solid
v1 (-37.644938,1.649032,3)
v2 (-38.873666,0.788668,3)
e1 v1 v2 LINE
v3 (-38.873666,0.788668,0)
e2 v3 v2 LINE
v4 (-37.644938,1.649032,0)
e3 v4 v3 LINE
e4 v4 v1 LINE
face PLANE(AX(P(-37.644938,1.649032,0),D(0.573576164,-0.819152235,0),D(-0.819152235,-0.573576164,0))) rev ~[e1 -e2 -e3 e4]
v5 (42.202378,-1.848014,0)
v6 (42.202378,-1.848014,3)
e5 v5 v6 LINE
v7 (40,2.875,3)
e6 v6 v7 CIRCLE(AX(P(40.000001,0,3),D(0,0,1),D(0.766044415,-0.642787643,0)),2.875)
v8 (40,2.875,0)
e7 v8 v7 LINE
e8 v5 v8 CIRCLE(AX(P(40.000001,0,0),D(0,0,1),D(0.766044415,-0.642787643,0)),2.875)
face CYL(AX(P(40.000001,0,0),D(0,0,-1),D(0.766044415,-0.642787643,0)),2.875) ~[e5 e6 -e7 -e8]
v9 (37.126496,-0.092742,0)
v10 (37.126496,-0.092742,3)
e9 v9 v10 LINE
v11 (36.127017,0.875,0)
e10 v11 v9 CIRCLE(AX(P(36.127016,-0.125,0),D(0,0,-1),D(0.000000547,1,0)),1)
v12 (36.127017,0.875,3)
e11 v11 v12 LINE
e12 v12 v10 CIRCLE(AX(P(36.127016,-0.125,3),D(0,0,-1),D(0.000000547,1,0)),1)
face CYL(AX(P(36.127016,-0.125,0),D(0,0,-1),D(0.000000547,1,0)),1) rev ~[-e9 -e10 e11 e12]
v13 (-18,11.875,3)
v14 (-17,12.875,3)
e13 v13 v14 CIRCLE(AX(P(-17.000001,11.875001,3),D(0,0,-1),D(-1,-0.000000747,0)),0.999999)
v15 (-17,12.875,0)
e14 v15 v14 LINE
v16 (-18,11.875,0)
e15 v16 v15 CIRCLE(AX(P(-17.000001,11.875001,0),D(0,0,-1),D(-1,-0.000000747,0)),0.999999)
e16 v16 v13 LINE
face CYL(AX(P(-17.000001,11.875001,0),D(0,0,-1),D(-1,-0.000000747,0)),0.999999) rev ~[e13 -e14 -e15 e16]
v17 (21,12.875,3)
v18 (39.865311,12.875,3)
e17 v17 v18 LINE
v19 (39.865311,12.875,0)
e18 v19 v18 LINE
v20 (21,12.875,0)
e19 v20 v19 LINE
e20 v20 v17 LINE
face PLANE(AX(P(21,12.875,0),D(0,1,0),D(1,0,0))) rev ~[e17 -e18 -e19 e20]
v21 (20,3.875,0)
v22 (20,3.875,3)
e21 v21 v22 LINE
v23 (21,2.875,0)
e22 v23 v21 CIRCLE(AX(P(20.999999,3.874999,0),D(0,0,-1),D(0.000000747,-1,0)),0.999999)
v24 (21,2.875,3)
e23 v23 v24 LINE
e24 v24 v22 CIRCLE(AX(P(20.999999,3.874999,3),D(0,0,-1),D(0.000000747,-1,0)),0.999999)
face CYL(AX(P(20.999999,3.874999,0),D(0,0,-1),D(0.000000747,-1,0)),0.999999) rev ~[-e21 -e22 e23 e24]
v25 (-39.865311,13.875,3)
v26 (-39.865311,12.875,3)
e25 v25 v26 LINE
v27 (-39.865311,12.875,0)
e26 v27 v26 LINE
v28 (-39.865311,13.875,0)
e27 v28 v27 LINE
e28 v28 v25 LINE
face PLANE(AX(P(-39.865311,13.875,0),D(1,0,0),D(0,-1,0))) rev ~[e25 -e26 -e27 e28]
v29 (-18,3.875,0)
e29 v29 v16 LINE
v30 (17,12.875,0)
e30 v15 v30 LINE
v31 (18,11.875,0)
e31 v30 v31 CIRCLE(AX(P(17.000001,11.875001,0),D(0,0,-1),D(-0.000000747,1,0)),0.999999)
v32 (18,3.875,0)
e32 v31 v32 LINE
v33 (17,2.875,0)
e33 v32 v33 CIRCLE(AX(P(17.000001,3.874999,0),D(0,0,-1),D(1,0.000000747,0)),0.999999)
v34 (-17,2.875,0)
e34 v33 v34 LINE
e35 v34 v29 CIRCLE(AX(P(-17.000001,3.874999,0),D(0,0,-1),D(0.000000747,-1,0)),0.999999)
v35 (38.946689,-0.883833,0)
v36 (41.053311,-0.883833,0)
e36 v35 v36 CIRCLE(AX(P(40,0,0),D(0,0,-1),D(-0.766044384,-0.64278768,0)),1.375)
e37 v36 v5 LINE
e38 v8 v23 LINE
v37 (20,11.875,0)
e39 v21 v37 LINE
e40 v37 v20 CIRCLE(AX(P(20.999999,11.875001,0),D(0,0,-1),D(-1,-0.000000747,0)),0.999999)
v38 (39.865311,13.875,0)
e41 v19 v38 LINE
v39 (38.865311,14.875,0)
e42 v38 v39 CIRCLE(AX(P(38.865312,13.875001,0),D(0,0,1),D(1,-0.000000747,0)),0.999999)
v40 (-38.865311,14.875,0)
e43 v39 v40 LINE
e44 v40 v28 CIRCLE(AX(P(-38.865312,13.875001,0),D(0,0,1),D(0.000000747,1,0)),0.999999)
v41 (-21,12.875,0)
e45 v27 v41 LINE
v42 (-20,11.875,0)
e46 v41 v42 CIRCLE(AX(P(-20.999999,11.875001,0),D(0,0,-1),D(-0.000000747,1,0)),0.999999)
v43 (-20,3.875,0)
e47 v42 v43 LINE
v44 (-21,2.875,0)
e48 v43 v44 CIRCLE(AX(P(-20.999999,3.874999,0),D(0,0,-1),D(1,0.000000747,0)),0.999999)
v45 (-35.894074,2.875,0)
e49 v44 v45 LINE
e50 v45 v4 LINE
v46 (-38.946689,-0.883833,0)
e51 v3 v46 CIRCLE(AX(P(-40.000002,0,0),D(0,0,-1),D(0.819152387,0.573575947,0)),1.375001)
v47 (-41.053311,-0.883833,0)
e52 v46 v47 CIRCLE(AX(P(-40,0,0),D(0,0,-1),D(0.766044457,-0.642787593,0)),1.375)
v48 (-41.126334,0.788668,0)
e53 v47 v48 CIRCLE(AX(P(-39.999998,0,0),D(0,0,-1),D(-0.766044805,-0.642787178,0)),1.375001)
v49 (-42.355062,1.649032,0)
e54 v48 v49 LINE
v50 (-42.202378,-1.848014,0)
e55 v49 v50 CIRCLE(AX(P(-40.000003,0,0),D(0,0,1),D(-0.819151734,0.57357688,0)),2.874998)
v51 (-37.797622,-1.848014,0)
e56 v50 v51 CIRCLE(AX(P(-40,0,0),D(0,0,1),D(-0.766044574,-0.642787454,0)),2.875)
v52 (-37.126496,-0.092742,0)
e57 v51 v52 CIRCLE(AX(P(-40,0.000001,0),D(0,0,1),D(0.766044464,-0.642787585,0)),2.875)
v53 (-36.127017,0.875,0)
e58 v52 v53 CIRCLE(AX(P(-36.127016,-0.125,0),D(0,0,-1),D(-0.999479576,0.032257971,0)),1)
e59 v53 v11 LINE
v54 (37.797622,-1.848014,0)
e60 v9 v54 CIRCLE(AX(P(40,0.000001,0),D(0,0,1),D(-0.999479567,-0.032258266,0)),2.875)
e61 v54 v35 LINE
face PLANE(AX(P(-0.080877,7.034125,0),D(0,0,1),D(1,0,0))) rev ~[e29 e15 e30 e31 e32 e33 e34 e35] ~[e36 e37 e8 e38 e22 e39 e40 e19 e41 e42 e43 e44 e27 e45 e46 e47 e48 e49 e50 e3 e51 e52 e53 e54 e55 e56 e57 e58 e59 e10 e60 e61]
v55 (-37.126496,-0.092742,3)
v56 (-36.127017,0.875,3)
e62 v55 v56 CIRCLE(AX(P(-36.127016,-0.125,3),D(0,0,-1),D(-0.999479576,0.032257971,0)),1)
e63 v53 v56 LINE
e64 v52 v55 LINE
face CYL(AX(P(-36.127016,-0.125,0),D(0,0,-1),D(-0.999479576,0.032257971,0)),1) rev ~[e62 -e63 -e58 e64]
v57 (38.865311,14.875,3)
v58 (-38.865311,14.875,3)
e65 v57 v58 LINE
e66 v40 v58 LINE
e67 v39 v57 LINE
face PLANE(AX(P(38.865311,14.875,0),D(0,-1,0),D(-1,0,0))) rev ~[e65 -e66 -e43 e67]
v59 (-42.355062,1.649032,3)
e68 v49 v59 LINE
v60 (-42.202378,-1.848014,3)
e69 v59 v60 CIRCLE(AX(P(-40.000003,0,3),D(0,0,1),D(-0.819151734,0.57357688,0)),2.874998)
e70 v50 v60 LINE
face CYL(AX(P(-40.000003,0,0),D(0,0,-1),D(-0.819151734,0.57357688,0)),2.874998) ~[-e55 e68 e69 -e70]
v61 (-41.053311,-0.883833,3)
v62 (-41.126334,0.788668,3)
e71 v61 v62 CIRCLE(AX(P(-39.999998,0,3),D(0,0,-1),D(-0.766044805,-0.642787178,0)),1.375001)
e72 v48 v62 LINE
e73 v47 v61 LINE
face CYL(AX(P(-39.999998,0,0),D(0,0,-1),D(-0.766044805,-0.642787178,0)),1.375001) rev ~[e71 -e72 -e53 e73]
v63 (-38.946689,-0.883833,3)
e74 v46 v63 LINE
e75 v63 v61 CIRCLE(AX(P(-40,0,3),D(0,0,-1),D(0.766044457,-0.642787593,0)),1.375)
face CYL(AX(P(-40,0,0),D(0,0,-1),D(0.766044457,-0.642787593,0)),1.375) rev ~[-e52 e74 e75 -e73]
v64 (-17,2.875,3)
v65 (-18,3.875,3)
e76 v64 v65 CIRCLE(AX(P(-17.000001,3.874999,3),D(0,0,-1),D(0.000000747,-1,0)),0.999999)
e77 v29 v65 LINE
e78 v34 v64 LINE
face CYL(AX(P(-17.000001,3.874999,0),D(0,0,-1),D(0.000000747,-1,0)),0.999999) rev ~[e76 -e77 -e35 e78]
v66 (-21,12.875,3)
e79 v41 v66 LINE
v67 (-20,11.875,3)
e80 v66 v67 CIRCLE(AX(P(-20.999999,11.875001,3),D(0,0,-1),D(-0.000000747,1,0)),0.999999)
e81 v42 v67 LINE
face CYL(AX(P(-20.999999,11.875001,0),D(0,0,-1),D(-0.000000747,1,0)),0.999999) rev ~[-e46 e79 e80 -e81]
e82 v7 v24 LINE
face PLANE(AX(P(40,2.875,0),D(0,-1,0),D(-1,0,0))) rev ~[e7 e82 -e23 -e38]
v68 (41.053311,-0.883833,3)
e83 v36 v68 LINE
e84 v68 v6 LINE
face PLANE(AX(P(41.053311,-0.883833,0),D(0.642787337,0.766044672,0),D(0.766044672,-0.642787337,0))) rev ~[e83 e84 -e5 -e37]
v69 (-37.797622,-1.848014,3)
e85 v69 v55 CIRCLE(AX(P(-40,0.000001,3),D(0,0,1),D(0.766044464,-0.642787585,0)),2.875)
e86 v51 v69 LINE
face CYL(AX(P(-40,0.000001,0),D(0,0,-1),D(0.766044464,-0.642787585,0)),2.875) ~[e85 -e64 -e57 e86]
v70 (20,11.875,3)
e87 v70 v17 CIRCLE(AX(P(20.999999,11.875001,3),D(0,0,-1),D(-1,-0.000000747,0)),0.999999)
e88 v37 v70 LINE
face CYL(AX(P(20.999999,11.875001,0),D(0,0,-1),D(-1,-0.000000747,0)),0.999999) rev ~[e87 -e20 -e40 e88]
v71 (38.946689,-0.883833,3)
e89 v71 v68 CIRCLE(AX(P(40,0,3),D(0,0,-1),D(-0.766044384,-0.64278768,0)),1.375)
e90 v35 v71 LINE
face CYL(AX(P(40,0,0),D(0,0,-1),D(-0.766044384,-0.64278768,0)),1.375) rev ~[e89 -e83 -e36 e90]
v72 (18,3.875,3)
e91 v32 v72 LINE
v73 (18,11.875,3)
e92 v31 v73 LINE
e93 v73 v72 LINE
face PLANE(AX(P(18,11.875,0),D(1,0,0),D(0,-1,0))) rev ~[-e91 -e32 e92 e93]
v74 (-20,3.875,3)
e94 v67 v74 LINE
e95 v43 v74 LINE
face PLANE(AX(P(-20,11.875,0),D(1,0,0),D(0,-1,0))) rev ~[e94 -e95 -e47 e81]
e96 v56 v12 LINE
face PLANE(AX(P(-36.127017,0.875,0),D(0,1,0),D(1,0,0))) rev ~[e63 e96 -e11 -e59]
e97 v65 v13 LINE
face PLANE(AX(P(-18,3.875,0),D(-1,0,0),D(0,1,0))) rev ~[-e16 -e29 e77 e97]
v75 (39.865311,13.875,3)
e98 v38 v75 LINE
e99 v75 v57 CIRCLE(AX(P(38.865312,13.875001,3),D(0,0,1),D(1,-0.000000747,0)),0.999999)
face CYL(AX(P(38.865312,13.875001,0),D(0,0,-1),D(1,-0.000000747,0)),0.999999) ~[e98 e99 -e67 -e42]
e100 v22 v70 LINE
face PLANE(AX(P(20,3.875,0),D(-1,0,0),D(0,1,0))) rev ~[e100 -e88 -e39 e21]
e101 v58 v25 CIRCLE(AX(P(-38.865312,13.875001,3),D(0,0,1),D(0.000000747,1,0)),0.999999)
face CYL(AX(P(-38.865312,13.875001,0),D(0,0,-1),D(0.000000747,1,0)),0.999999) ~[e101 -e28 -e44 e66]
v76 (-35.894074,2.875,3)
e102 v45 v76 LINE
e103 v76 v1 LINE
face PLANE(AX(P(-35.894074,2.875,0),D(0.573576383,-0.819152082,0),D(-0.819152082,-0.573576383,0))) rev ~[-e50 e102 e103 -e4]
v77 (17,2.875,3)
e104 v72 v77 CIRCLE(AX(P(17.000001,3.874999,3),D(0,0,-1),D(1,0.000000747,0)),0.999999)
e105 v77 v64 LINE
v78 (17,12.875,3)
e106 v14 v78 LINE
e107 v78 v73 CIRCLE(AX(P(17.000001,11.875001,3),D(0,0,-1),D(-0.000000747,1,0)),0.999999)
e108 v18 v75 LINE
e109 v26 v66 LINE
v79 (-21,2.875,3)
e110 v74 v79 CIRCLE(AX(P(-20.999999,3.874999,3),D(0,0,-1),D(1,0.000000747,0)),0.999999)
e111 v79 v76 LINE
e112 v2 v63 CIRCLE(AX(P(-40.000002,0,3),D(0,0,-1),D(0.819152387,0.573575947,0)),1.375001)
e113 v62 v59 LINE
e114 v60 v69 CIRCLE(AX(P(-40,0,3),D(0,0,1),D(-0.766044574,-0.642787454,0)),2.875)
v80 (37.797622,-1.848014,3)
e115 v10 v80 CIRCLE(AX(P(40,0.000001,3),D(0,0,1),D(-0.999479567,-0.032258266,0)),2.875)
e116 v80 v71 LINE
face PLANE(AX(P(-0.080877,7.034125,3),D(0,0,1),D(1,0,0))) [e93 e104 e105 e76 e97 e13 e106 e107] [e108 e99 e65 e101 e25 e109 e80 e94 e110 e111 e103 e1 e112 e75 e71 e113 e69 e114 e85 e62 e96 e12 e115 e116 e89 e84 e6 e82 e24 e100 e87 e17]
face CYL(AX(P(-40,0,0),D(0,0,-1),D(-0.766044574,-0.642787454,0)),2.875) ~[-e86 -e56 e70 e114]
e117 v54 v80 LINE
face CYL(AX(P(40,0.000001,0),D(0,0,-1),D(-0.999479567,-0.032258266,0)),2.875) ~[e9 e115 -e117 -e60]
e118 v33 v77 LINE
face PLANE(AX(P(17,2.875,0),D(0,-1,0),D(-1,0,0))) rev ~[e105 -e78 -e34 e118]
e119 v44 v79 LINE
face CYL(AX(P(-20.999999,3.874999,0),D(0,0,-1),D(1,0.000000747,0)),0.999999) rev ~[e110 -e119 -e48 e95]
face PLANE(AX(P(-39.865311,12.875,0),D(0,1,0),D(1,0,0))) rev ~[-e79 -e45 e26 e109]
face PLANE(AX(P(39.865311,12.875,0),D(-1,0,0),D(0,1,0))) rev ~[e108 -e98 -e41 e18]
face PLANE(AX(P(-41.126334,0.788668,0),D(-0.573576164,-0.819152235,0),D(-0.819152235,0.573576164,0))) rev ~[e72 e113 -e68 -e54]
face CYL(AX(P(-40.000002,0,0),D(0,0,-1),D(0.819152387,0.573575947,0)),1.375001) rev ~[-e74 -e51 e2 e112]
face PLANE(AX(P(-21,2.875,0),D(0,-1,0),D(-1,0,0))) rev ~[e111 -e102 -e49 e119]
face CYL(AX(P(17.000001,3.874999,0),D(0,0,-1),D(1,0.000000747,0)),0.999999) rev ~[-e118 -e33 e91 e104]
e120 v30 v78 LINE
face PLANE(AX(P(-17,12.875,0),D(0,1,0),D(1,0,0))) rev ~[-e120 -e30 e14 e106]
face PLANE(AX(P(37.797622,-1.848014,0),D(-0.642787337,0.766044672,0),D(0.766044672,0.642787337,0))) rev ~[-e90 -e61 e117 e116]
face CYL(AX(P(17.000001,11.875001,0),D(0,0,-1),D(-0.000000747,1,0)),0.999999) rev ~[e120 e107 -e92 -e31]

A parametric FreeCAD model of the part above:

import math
import FreeCAD as App
import Part
import Sketcher
from FreeCAD import Vector
Q = App.Units.Quantity

doc = App.newDocument("Part")
body = doc.addObject("PartDesign::Body", "Body")

# Sketch on XY plane
sketch1 = body.newObject("Sketcher::SketchObject", "Sketch")
sketch1.AttachmentSupport = (doc.getObject("XY_Plane"), [""])
sketch1.MapMode = "FlatFace"
sketch1.addGeometry(Part.ArcOfCircle(Part.Circle(Vector(-40.000002, 0, 0), Vector(0, 0, 1), 1.375001), math.radians(-39.999968), math.radians(34.999966)), False)
sketch1.addGeometry(Part.ArcOfCircle(Part.Circle(Vector(-40, 0, 0), Vector(0, 0, 1), 1.375), math.radians(-140.000001), math.radians(-39.999999)), False)
sketch1.addGeometry(Part.ArcOfCircle(Part.Circle(Vector(-39.999998, 0, 0), Vector(0, 0, 1), 1.375001), math.radians(145.000034), math.radians(219.999968)), False)
sketch1.addGeometry(Part.LineSegment(Vector(-41.126334, 0.788668, 0), Vector(-42.355062, 1.649032, 0)), False)
sketch1.addGeometry(Part.ArcOfCircle(Part.Circle(Vector(-40.000003, 0, 0), Vector(0, 0, 1), 2.874998), math.radians(144.999969), math.radians(220.00002)), False)
sketch1.addGeometry(Part.ArcOfCircle(Part.Circle(Vector(-40, 0, 0), Vector(0, 0, 1), 2.875), math.radians(-140.000012), math.radians(-39.999988)), False)
sketch1.addGeometry(Part.ArcOfCircle(Part.Circle(Vector(-40, 0.000001, 0), Vector(0, 0, 1), 2.875), math.radians(-39.999998), math.radians(-1.848583)), False)
sketch1.addGeometry(Part.ArcOfCircle(Part.Circle(Vector(-36.127016, -0.125, 0), Vector(0, 0, 1), 1), math.radians(90.000031), math.radians(178.151434)), False)
sketch1.addGeometry(Part.LineSegment(Vector(-36.127017, 0.875, 0), Vector(36.127017, 0.875, 0)), False)
sketch1.addGeometry(Part.ArcOfCircle(Part.Circle(Vector(36.127016, -0.125, 0), Vector(0, 0, 1), 1), math.radians(1.848566), math.radians(89.999969)), False)
sketch1.addGeometry(Part.ArcOfCircle(Part.Circle(Vector(40, 0.000001, 0), Vector(0, 0, 1), 2.875), math.radians(-178.151417), math.radians(-140.000002)), False)
sketch1.addGeometry(Part.LineSegment(Vector(37.797622, -1.848014, 0), Vector(38.946689, -0.883833, 0)), False)
sketch1.addGeometry(Part.ArcOfCircle(Part.Circle(Vector(40, 0, 0), Vector(0, 0, 1), 1.375), math.radians(-40.000005), math.radians(220.000005)), False)
sketch1.addGeometry(Part.LineSegment(Vector(41.053311, -0.883833, 0), Vector(42.202378, -1.848014, 0)), False)
sketch1.addGeometry(Part.ArcOfCircle(Part.Circle(Vector(40.000001, 0, 0), Vector(0, 0, 1), 2.875), math.radians(-40.000003), math.radians(90.000011)), False)
sketch1.addGeometry(Part.LineSegment(Vector(40, 2.875, 0), Vector(21, 2.875, 0)), False)
sketch1.addGeometry(Part.ArcOfCircle(Part.Circle(Vector(20.999999, 3.874999, 0), Vector(0, 0, 1), 0.999999), math.radians(179.999957), math.radians(270.000043)), False)
sketch1.addGeometry(Part.LineSegment(Vector(20, 3.875, 0), Vector(20, 11.875, 0)), False)
sketch1.addGeometry(Part.ArcOfCircle(Part.Circle(Vector(20.999999, 11.875001, 0), Vector(0, 0, 1), 0.999999), math.radians(89.999957), math.radians(180.000043)), False)
sketch1.addGeometry(Part.LineSegment(Vector(21, 12.875, 0), Vector(39.865311, 12.875, 0)), False)
sketch1.addGeometry(Part.LineSegment(Vector(39.865311, 12.875, 0), Vector(39.865311, 13.875, 0)), False)
sketch1.addGeometry(Part.ArcOfCircle(Part.Circle(Vector(38.865312, 13.875001, 0), Vector(0, 0, 1), 0.999999), math.radians(-0.000043), math.radians(90.000043)), False)
sketch1.addGeometry(Part.LineSegment(Vector(38.865311, 14.875, 0), Vector(-38.865311, 14.875, 0)), False)
sketch1.addGeometry(Part.ArcOfCircle(Part.Circle(Vector(-38.865312, 13.875001, 0), Vector(0, 0, 1), 0.999999), math.radians(89.999957), math.radians(180.000043)), False)
sketch1.addGeometry(Part.LineSegment(Vector(-39.865311, 13.875, 0), Vector(-39.865311, 12.875, 0)), False)
sketch1.addGeometry(Part.LineSegment(Vector(-39.865311, 12.875, 0), Vector(-21, 12.875, 0)), False)
sketch1.addGeometry(Part.ArcOfCircle(Part.Circle(Vector(-20.999999, 11.875001, 0), Vector(0, 0, 1), 0.999999), math.radians(-0.000043), math.radians(90.000043)), False)
sketch1.addGeometry(Part.LineSegment(Vector(-20, 11.875, 0), Vector(-20, 3.875, 0)), False)
sketch1.addGeometry(Part.ArcOfCircle(Part.Circle(Vector(-20.999999, 3.874999, 0), Vector(0, 0, 1), 0.999999), math.radians(-90.000043), math.radians(0.000043)), False)
sketch1.addGeometry(Part.LineSegment(Vector(-21, 2.875, 0), Vector(-35.894074, 2.875, 0)), False)
sketch1.addGeometry(Part.LineSegment(Vector(-35.894074, 2.875, 0), Vector(-37.644938, 1.649032, 0)), False)
sketch1.addGeometry(Part.LineSegment(Vector(-37.644938, 1.649032, 0), Vector(-38.873666, 0.788668, 0)), False)
sketch1.addGeometry(Part.LineSegment(Vector(-18, 3.875, 0), Vector(-18, 11.875, 0)), False)
sketch1.addGeometry(Part.ArcOfCircle(Part.Circle(Vector(-17.000001, 11.875001, 0), Vector(0, 0, 1), 0.999999), math.radians(89.999957), math.radians(180.000043)), False)
sketch1.addGeometry(Part.LineSegment(Vector(-17, 12.875, 0), Vector(17, 12.875, 0)), False)
sketch1.addGeometry(Part.ArcOfCircle(Part.Circle(Vector(17.000001, 11.875001, 0), Vector(0, 0, 1), 0.999999), math.radians(-0.000043), math.radians(90.000043)), False)
sketch1.addGeometry(Part.LineSegment(Vector(18, 11.875, 0), Vector(18, 3.875, 0)), False)
sketch1.addGeometry(Part.ArcOfCircle(Part.Circle(Vector(17.000001, 3.874999, 0), Vector(0, 0, 1), 0.999999), math.radians(-90.000043), math.radians(0.000043)), False)
sketch1.addGeometry(Part.LineSegment(Vector(17, 2.875, 0), Vector(-17, 2.875, 0)), False)
sketch1.addGeometry(Part.ArcOfCircle(Part.Circle(Vector(-17.000001, 3.874999, 0), Vector(0, 0, 1), 0.999999), math.radians(179.999957), math.radians(270.000043)), False)
sketch1.addConstraint(Sketcher.Constraint("Tangent", 0, 1, 1, 2))
sketch1.addConstraint(Sketcher.Constraint("Tangent", 1, 1, 2, 2))
sketch1.addConstraint(Sketcher.Constraint("Coincident", 2, 1, 3, 1))
sketch1.addConstraint(Sketcher.Constraint("Coincident", 3, 2, 4, 1))
sketch1.addConstraint(Sketcher.Constraint("Tangent", 4, 2, 5, 1))
sketch1.addConstraint(Sketcher.Constraint("Tangent", 5, 2, 6, 1))
sketch1.addConstraint(Sketcher.Constraint("Tangent", 6, 2, 7, 2))
sketch1.addConstraint(Sketcher.Constraint("Tangent", 7, 1, 8, 1))
sketch1.addConstraint(Sketcher.Constraint("Tangent", 8, 2, 9, 2))
sketch1.addConstraint(Sketcher.Constraint("Tangent", 9, 1, 10, 1))
sketch1.addConstraint(Sketcher.Constraint("Coincident", 10, 2, 11, 1))
sketch1.addConstraint(Sketcher.Constraint("Coincident", 11, 2, 12, 2))
sketch1.addConstraint(Sketcher.Constraint("Coincident", 12, 1, 13, 1))
sketch1.addConstraint(Sketcher.Constraint("Coincident", 13, 2, 14, 1))
sketch1.addConstraint(Sketcher.Constraint("Tangent", 14, 2, 15, 1))
sketch1.addConstraint(Sketcher.Constraint("Tangent", 15, 2, 16, 2))
sketch1.addConstraint(Sketcher.Constraint("Tangent", 16, 1, 17, 1))
sketch1.addConstraint(Sketcher.Constraint("Tangent", 17, 2, 18, 2))
sketch1.addConstraint(Sketcher.Constraint("Tangent", 18, 1, 19, 1))
sketch1.addConstraint(Sketcher.Constraint("Coincident", 19, 2, 20, 1))
sketch1.addConstraint(Sketcher.Constraint("Tangent", 20, 2, 21, 1))
sketch1.addConstraint(Sketcher.Constraint("Tangent", 21, 2, 22, 1))
sketch1.addConstraint(Sketcher.Constraint("Tangent", 22, 2, 23, 1))
sketch1.addConstraint(Sketcher.Constraint("Tangent", 23, 2, 24, 1))
sketch1.addConstraint(Sketcher.Constraint("Coincident", 24, 2, 25, 1))
sketch1.addConstraint(Sketcher.Constraint("Tangent", 25, 2, 26, 2))
sketch1.addConstraint(Sketcher.Constraint("Tangent", 26, 1, 27, 1))
sketch1.addConstraint(Sketcher.Constraint("Tangent", 27, 2, 28, 2))
sketch1.addConstraint(Sketcher.Constraint("Tangent", 28, 1, 29, 1))
sketch1.addConstraint(Sketcher.Constraint("Coincident", 29, 2, 30, 1))
sketch1.addConstraint(Sketcher.Constraint("Coincident", 30, 2, 31, 1))
sketch1.addConstraint(Sketcher.Constraint("Coincident", 31, 2, 0, 2))
sketch1.addConstraint(Sketcher.Constraint("Tangent", 32, 2, 33, 2))
sketch1.addConstraint(Sketcher.Constraint("Tangent", 33, 1, 34, 1))
sketch1.addConstraint(Sketcher.Constraint("Tangent", 34, 2, 35, 2))
sketch1.addConstraint(Sketcher.Constraint("Tangent", 35, 1, 36, 1))
sketch1.addConstraint(Sketcher.Constraint("Tangent", 36, 2, 37, 2))
sketch1.addConstraint(Sketcher.Constraint("Tangent", 37, 1, 38, 1))
sketch1.addConstraint(Sketcher.Constraint("Tangent", 38, 2, 39, 2))
sketch1.addConstraint(Sketcher.Constraint("Tangent", 39, 1, 32, 1))
sketch1.addConstraint(Sketcher.Constraint("Horizontal", 8))
sketch1.addConstraint(Sketcher.Constraint("Horizontal", 15))
sketch1.addConstraint(Sketcher.Constraint("Vertical", 17))
sketch1.addConstraint(Sketcher.Constraint("Horizontal", 19))
sketch1.addConstraint(Sketcher.Constraint("Vertical", 20))
sketch1.addConstraint(Sketcher.Constraint("Horizontal", 22))
sketch1.addConstraint(Sketcher.Constraint("Vertical", 24))
sketch1.addConstraint(Sketcher.Constraint("Horizontal", 25))
sketch1.addConstraint(Sketcher.Constraint("Vertical", 27))
sketch1.addConstraint(Sketcher.Constraint("Horizontal", 29))
sketch1.addConstraint(Sketcher.Constraint("Vertical", 32))
sketch1.addConstraint(Sketcher.Constraint("Horizontal", 34))
sketch1.addConstraint(Sketcher.Constraint("Vertical", 36))
sketch1.addConstraint(Sketcher.Constraint("Horizontal", 38))
sketch1.addConstraint(Sketcher.Constraint("Coincident", 2, 3, 0, 3))
sketch1.addConstraint(Sketcher.Constraint("Coincident", 4, 3, 0, 3))
sketch1.addConstraint(Sketcher.Constraint("Coincident", 6, 3, 0, 3))
sketch1.addConstraint(Sketcher.Constraint("Coincident", 12, 3, 10, 3))
sketch1.addConstraint(Sketcher.Constraint("Coincident", 14, 3, 10, 3))
sketch1.addConstraint(Sketcher.Constraint("Equal", 7, 9))
sketch1.addConstraint(Sketcher.Constraint("Equal", 6, 10))
sketch1.addConstraint(Sketcher.Constraint("Equal", 2, 12))
sketch1.addConstraint(Sketcher.Constraint("Equal", 10, 14))
sketch1.addConstraint(Sketcher.Constraint("Equal", 9, 16))
sketch1.addConstraint(Sketcher.Constraint("Equal", 16, 18))
sketch1.addConstraint(Sketcher.Constraint("Equal", 18, 21))
sketch1.addConstraint(Sketcher.Constraint("Equal", 21, 23))
sketch1.addConstraint(Sketcher.Constraint("Equal", 23, 26))
sketch1.addConstraint(Sketcher.Constraint("Equal", 26, 28))
sketch1.addConstraint(Sketcher.Constraint("Equal", 28, 33))
sketch1.addConstraint(Sketcher.Constraint("Equal", 33, 35))
sketch1.addConstraint(Sketcher.Constraint("Equal", 35, 37))
sketch1.addConstraint(Sketcher.Constraint("Equal", 37, 39))
sketch1.addConstraint(Sketcher.Constraint("Symmetric", 0, 3, 10, 3, -1, 1))
sketch1.addConstraint(Sketcher.Constraint("Symmetric", 18, 3, 26, 3, -2))
sketch1.addConstraint(Sketcher.Constraint("Symmetric", 5, 2, 10, 2, -2))
sketch1.addConstraint(Sketcher.Constraint("Parallel", 30, 31))
sketch1.addConstraint(Sketcher.Constraint("Horizontal", 16, 3, 28, 3))
sketch1.addConstraint(Sketcher.Constraint("Horizontal", 26, 3, 33, 3))
sketch1.addConstraint(Sketcher.Constraint("Horizontal", 28, 3, 37, 3))
sketch1.addConstraint(Sketcher.Constraint("Horizontal", 0, 1, 1, 1))
sketch1.addConstraint(Sketcher.Constraint("Horizontal", 4, 2, 5, 2))
sketch1.addConstraint(Sketcher.Constraint("Horizontal", 1, 1, 11, 2))
sketch1.addConstraint(Sketcher.Constraint("Horizontal", 11, 2, 12, 1))
sketch1.addConstraint(Sketcher.Constraint("Horizontal", 10, 2, 13, 2))
sketch1.addConstraint(Sketcher.Constraint("Horizontal", 3, 2, 30, 2))
sketch1.addConstraint(Sketcher.Constraint("Horizontal", 2, 1, 31, 2))
sketch1.addConstraint(Sketcher.Constraint("Equal", 19, 25))
sketch1.addConstraint(Sketcher.Constraint("Equal", 13, 31))
sketch1.addConstraint(Sketcher.Constraint("Radius", 7, 1.0))
sketch1.addConstraint(Sketcher.Constraint("DistanceX", 15, 2, 15, 1, 19.0))
sketch1.addConstraint(Sketcher.Constraint("DistanceX", 34, 1, 34, 2, 34.0))
sketch1.addConstraint(Sketcher.Constraint("DistanceY", 17, 1, 17, 2, 8.0))
sketch1.addConstraint(Sketcher.Constraint("DistanceY", 20, 1, 20, 2, 1.0))
sketch1.addConstraint(Sketcher.Constraint("Angle", 3, Q("145.000019 deg")))
sketch1.addConstraint(Sketcher.Constraint("DistanceX", 0, 3, -1, 1, 40.000002))
sketch1.addConstraint(Sketcher.Constraint("DistanceX", 33, 3, -1, 1, 17.000001))
sketch1.addConstraint(Sketcher.Constraint("Radius", 0, 1.375001))
sketch1.addConstraint(Sketcher.Constraint("Radius", 5, 2.875))
sketch1.addConstraint(Sketcher.Constraint("DistanceY", 7, 3, -1, 1, 0.125))
sketch1.addConstraint(Sketcher.Constraint("DistanceX", 19, 1, 19, 2, 18.865311))
sketch1.addConstraint(Sketcher.Constraint("Distance", 30, 2.13741))
sketch1.addConstraint(Sketcher.Constraint("DistanceX", 0, 1, -1, 1, 38.946689))
sketch1.addConstraint(Sketcher.Constraint("DistanceX", 4, 2, -1, 1, 42.202378))
pad1 = body.newObject("PartDesign::Pad", "Pad")
pad1.Profile = sketch1
pad1.Length = 3

doc.recompute()
